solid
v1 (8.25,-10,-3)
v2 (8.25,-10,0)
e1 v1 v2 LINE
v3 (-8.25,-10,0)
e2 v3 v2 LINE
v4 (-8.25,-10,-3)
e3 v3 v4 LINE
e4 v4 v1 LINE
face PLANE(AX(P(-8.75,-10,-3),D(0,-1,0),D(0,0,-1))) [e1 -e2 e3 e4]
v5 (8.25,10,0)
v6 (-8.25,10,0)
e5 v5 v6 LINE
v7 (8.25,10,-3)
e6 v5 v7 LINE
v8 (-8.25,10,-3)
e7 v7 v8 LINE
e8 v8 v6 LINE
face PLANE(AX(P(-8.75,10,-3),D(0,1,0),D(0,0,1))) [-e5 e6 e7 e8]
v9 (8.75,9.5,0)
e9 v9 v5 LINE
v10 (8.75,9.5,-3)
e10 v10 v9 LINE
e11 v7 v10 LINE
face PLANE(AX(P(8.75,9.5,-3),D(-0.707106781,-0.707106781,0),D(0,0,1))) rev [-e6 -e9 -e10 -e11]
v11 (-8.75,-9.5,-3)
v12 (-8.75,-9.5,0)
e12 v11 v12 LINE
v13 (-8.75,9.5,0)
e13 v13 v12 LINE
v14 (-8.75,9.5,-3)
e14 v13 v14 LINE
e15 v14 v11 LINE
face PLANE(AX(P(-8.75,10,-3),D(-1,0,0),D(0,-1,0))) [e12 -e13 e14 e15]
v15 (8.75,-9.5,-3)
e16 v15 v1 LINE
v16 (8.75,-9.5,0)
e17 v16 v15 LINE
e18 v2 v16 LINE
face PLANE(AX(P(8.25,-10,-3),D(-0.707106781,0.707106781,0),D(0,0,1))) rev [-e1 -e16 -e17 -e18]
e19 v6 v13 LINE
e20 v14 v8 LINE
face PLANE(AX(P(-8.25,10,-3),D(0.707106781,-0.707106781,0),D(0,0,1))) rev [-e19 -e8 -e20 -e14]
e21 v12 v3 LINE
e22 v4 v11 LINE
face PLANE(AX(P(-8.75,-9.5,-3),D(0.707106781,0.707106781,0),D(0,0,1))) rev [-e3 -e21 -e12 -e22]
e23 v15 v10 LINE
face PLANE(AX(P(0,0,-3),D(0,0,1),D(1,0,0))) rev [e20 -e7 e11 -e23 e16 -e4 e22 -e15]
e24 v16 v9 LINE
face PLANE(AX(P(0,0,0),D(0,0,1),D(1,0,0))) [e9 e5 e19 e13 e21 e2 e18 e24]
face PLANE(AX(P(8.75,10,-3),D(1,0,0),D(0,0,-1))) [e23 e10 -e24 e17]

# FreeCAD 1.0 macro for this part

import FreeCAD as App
import Part
import Sketcher

V = App.Vector


def edges_at(feature, points):
    """Names of the edges that pass closest to the given points."""
    edges = feature.Shape.Edges
    near = lambda p: min(range(len(edges)), key=lambda i: edges[i].distToShape(Part.Vertex(*p))[0])
    return sorted({f"Edge{near(p) + 1}" for p in points})


def add_polygon(sketch, points):
    """Adds a closed chain of lines whose ends are joined by coincident constraints."""
    first, n = sketch.GeometryCount, len(points)
    for a, b in zip(points, points[1:] + points[:1]):
        sketch.addGeometry(Part.LineSegment(App.Vector(*a, 0), App.Vector(*b, 0)), False)
    for i in range(n):
        sketch.addConstraint(Sketcher.Constraint("Coincident", first + i, 2, first + (i + 1) % n, 1))

doc = App.newDocument("Part")
body = doc.addObject("PartDesign::Body", "Body")

# Sketch on XY plane
sketch1 = doc.addObject("Sketcher::SketchObject", "Sketch")
body.addObject(sketch1)
sketch1.AttachmentSupport = (doc.XY_Plane, [""])
sketch1.MapMode = "FlatFace"
add_polygon(sketch1, [(-9, 10), (-9, -10), (9, -10), (9, 10)])  # lines 0-3
sketch1.addConstraint([
    Sketcher.Constraint("Vertical", 0),
    Sketcher.Constraint("Horizontal", 1),
    Sketcher.Constraint("Vertical", 2),
    Sketcher.Constraint("Horizontal", 3),
    Sketcher.Constraint("Symmetric", 0, 2, 2, 2, -1, 1),
    Sketcher.Constraint("DistanceY", 0, 2, 0, 1, 20.0),
    Sketcher.Constraint("DistanceX", 1, 1, 1, 2, 17.5),
])
pad1 = doc.addObject("PartDesign::Pad", "Pad")
body.addObject(pad1)
pad1.Profile = sketch1
pad1.Length = 3
pad1.Reversed = True
doc.recompute()

chamfer = doc.addObject("PartDesign::Chamfer", "Chamfer")
body.addObject(chamfer)
chamfer.Base = (pad1, edges_at(pad1, [(-8.75, -10, -1.5)]))
chamfer.Size = 0.5
doc.recompute()

chamfer2 = doc.addObject("PartDesign::Chamfer", "Chamfer001")
body.addObject(chamfer2)
chamfer2.Base = (chamfer, edges_at(chamfer, [(8.75, -10, -1.5)]))
chamfer2.Size = 0.5
doc.recompute()

chamfer3 = doc.addObject("PartDesign::Chamfer", "Chamfer002")
body.addObject(chamfer3)
chamfer3.Base = (chamfer2, edges_at(chamfer2, [(8.75, 10, -1.5)]))
chamfer3.Size = 0.5
doc.recompute()

chamfer4 = doc.addObject("PartDesign::Chamfer", "Chamfer003")
body.addObject(chamfer4)
chamfer4.Base = (chamfer3, edges_at(chamfer3, [(-8.75, 10, -1.5)]))
chamfer4.Size = 0.5

doc.recompute()
